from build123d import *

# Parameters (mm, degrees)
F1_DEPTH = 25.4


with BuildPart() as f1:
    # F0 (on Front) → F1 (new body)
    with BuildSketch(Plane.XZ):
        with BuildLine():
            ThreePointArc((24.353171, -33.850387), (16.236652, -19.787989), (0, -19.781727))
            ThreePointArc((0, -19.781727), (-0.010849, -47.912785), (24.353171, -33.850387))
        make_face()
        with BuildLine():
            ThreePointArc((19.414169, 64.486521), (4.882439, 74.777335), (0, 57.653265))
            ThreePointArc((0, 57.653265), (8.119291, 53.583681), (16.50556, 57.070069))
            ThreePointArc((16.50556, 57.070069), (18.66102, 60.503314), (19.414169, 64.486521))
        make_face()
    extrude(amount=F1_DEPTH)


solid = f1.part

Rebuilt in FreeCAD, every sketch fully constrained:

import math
import FreeCAD as App
import Part
import Sketcher

V = App.Vector
Q = App.Units.Quantity

doc = App.newDocument("Part")
body = doc.addObject("PartDesign::Body", "Body")
body.AllowCompound = True

# Sketch on XZ plane
sketch1 = body.newObject("Sketcher::SketchObject", "Sketch")
sketch1.AttachmentSupport = (doc.getObject("XZ_Plane"), [""])
sketch1.MapMode = "FlatFace"
sketch1.addGeometry([
    Part.ArcOfCircle(Part.Circle(V(8.112901, -33.850387, 0), V(0, 0, 1), 16.24027), math.radians(0), math.radians(119.970537)),  # 0
    Part.ArcOfCircle(Part.Circle(V(8.112901, -33.850387, 0), V(0, 0, 1), 16.24027), math.radians(119.970537), math.radians(360)),  # 1
    Part.ArcOfCircle(Part.Circle(V(8.504525, 64.486522, 0), V(0, 0, 1), 10.909644), math.radians(-0.000005), math.radians(218.78135)),  # 2
    Part.ArcOfCircle(Part.Circle(V(8.504525, 64.486521, 0), V(0, 0, 1), 10.909644), math.radians(-141.218652), math.radians(-42.828563)),  # 3
    Part.ArcOfCircle(Part.Circle(V(8.504526, 64.486521, 0), V(0, 0, 1), 10.909643), math.radians(-42.828569), math.radians(-0.000001)),  # 4
], False)
sketch1.addConstraint([
    Sketcher.Constraint("Tangent", 0, 1, 1, 2),
    Sketcher.Constraint("Coincident", 1, 1, 0, 2),
    Sketcher.Constraint("Tangent", 2, 2, 3, 1),
    Sketcher.Constraint("Tangent", 3, 2, 4, 1),
    Sketcher.Constraint("Tangent", 4, 2, 2, 1),
    Sketcher.Constraint("PointOnObject", 1, 1, -2),
    Sketcher.Constraint("PointOnObject", 2, 2, -2),
    Sketcher.Constraint("Horizontal", 1, 3, 0, 1),
    Sketcher.Constraint("Horizontal", 3, 3, 4, 2),
    Sketcher.Constraint("Radius", 0, 16.24027),
    Sketcher.Constraint("Radius", 2, 10.909644),
    Sketcher.Constraint("DistanceX", -1, 1, 0, 3, 8.112901),
    Sketcher.Constraint("DistanceY", -1, 1, 2, 3, 64.486522),
    Sketcher.Constraint("DistanceX", -1, 1, 3, 2, 16.50556),
    Sketcher.Constraint("DistanceY", -1, 1, 3, 2, 57.070069),
    Sketcher.Constraint("DistanceY", 0, 3, 2, 3, 98.336909),
])
pad1 = body.newObject("PartDesign::Pad", "Pad")
pad1.Profile = sketch1
pad1.Length = Q("1 in")

doc.recompute()
